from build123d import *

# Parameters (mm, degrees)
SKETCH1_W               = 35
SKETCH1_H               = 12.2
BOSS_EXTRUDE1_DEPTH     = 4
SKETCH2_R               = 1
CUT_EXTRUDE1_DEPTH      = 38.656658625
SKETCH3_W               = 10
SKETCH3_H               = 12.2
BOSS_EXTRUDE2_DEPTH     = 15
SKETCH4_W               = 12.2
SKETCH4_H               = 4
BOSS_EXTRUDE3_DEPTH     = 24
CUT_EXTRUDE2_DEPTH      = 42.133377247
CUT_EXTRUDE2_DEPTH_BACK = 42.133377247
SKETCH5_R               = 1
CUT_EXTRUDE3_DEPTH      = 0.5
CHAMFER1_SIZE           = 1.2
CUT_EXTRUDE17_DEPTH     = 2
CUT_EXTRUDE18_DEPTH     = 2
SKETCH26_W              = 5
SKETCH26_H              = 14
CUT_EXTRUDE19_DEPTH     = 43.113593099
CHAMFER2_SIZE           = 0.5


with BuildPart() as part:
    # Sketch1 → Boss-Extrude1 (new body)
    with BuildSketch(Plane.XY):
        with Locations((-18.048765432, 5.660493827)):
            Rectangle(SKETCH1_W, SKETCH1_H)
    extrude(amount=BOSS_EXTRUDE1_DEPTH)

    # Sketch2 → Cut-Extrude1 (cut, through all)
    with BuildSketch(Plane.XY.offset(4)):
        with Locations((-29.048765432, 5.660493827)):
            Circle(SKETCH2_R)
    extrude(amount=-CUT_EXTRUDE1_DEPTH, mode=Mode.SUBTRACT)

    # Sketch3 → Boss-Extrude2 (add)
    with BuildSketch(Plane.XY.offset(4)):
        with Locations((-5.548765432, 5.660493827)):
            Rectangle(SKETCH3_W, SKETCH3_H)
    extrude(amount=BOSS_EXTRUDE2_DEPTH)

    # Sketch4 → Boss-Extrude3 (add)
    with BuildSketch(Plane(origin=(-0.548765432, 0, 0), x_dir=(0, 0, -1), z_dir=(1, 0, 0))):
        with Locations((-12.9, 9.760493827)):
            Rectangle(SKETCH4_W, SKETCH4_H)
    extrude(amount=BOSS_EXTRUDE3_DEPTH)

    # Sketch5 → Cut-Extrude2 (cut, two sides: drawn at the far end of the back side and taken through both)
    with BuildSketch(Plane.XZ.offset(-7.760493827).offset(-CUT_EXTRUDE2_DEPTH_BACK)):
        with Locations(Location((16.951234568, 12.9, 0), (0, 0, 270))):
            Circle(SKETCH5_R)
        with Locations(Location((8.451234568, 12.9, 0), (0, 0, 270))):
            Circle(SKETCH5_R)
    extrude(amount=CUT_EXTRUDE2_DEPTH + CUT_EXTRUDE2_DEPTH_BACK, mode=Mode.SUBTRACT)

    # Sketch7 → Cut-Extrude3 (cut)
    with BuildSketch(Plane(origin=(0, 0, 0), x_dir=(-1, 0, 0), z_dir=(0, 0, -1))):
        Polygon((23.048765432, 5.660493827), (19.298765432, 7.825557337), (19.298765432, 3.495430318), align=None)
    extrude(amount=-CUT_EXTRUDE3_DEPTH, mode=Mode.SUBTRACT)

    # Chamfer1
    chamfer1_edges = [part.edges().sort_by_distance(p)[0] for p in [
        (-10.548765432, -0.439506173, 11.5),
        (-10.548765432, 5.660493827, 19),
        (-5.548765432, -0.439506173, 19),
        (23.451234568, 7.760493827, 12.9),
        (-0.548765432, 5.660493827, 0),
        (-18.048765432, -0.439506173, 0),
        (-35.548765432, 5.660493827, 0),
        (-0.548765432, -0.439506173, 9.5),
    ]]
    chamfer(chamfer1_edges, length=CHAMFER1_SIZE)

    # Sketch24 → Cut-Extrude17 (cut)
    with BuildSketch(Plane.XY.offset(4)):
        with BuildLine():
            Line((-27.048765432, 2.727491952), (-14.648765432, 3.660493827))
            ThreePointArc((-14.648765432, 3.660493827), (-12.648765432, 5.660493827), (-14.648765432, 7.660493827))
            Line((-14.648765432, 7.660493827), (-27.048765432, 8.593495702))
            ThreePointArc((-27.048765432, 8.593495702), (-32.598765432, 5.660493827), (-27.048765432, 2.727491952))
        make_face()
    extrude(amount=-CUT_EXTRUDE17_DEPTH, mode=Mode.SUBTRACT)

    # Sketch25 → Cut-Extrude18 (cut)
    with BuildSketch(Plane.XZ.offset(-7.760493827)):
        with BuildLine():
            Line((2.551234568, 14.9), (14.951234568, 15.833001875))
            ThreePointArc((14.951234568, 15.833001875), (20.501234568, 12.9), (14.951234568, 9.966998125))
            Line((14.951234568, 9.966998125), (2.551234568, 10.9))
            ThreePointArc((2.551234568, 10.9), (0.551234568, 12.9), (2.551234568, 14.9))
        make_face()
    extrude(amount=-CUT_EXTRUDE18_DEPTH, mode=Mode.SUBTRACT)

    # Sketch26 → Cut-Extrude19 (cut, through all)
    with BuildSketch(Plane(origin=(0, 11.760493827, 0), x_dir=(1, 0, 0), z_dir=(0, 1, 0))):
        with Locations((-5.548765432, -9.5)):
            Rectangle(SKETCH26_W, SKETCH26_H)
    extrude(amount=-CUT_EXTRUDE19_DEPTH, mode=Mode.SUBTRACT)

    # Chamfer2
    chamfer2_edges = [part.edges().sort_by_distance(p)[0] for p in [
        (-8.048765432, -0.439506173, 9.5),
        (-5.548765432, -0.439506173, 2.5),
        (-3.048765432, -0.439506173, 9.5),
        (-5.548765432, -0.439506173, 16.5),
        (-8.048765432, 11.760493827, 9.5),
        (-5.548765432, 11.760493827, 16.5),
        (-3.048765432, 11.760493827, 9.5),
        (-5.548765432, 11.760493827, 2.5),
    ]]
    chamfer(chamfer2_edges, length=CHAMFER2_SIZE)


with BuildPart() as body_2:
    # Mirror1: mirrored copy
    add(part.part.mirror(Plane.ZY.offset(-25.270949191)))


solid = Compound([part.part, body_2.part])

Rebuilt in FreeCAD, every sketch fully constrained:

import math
import FreeCAD as App
import Part
import Sketcher
Q = App.Units.Quantity


def edges_at(feature, points):
    """Names of the edges that pass closest to the given points."""
    edges = feature.Shape.Edges
    near = lambda p: min(range(len(edges)), key=lambda i: edges[i].distToShape(Part.Vertex(*p))[0])
    return sorted({f"Edge{near(p) + 1}" for p in points})

doc = App.newDocument("Part")
body = doc.addObject("PartDesign::Body", "Body")

# Sketch on XY plane
sketch1 = body.newObject("Sketcher::SketchObject", "Sketch")
sketch1.AttachmentSupport = (doc.getObject("XY_Plane"), [""])
sketch1.MapMode = "FlatFace"
sketch1.addGeometry([
    Part.LineSegment(App.Vector(-35.548765, 11.760494, 0), App.Vector(-35.548765, -0.439506, 0)),
    Part.LineSegment(App.Vector(-35.548765, -0.439506, 0), App.Vector(-0.548765, -0.439506, 0)),
    Part.LineSegment(App.Vector(-0.548765, -0.439506, 0), App.Vector(-0.548765, 11.760494, 0)),
    Part.LineSegment(App.Vector(-0.548765, 11.760494, 0), App.Vector(-35.548765, 11.760494, 0)),
], False)
sketch1.addConstraint([
    Sketcher.Constraint("Coincident", 0, 2, 1, 1),
    Sketcher.Constraint("Coincident", 1, 2, 2, 1),
    Sketcher.Constraint("Coincident", 2, 2, 3, 1),
    Sketcher.Constraint("Coincident", 3, 2, 0, 1),
    Sketcher.Constraint("Vertical", 0),
    Sketcher.Constraint("Horizontal", 1),
    Sketcher.Constraint("Vertical", 2),
    Sketcher.Constraint("Horizontal", 3),
    Sketcher.Constraint("DistanceX", 1, 1, 1, 2, Q("35 mm")),
    Sketcher.Constraint("DistanceY", 0, 2, 0, 1, Q("12.2 mm")),
    Sketcher.Constraint("DistanceX", 0, 2, -1, 1, Q("35.548765 mm")),
    Sketcher.Constraint("DistanceY", 0, 2, -1, 1, Q("0.439506 mm")),
])
pad1 = body.newObject("PartDesign::Pad", "Pad")
pad1.Profile = sketch1
pad1.Length = 4

# Sketch on XY plane
sketch2 = body.newObject("Sketcher::SketchObject", "Sketch001")
sketch2.AttachmentSupport = (doc.getObject("XY_Plane"), [""])
sketch2.MapMode = "FlatFace"
sketch2.AttachmentOffset = App.Placement(App.Vector(0, 0, 4), App.Rotation())
sketch2.addGeometry(Part.Circle(App.Vector(-29.048765, 5.660494, 0), App.Vector(0, 0, 1), 1), False)
sketch2.addConstraint([
    Sketcher.Constraint("Diameter", 0, Q("2 mm")),
    Sketcher.Constraint("DistanceX", 0, 3, -1, 1, Q("29.048765 mm")),
    Sketcher.Constraint("DistanceY", -1, 1, 0, 3, Q("5.660494 mm")),
])
pocket1 = body.newObject("PartDesign::Pocket", "Pocket")
pocket1.Profile = sketch2
pocket1.Type = "ThroughAll"

# Sketch on XY plane
sketch3 = body.newObject("Sketcher::SketchObject", "Sketch002")
sketch3.AttachmentSupport = (doc.getObject("XY_Plane"), [""])
sketch3.MapMode = "FlatFace"
sketch3.AttachmentOffset = App.Placement(App.Vector(0, 0, 4), App.Rotation())
sketch3.addGeometry([
    Part.LineSegment(App.Vector(-10.548765, 11.760494, 0), App.Vector(-10.548765, -0.439506, 0)),
    Part.LineSegment(App.Vector(-10.548765, -0.439506, 0), App.Vector(-0.548765, -0.439506, 0)),
    Part.LineSegment(App.Vector(-0.548765, -0.439506, 0), App.Vector(-0.548765, 11.760494, 0)),
    Part.LineSegment(App.Vector(-0.548765, 11.760494, 0), App.Vector(-10.548765, 11.760494, 0)),
], False)
sketch3.addConstraint([
    Sketcher.Constraint("Coincident", 0, 2, 1, 1),
    Sketcher.Constraint("Coincident", 1, 2, 2, 1),
    Sketcher.Constraint("Coincident", 2, 2, 3, 1),
    Sketcher.Constraint("Coincident", 3, 2, 0, 1),
    Sketcher.Constraint("Vertical", 0),
    Sketcher.Constraint("Horizontal", 1),
    Sketcher.Constraint("Vertical", 2),
    Sketcher.Constraint("Horizontal", 3),
    Sketcher.Constraint("DistanceX", 1, 1, 1, 2, Q("10 mm")),
    Sketcher.Constraint("DistanceY", 0, 2, 0, 1, Q("12.2 mm")),
    Sketcher.Constraint("DistanceX", 0, 2, -1, 1, Q("10.548765 mm")),
    Sketcher.Constraint("DistanceY", 0, 2, -1, 1, Q("0.439506 mm")),
])
pad2 = body.newObject("PartDesign::Pad", "Pad001")
pad2.Profile = sketch3
pad2.Length = 15

# Sketch on YZ plane
sketch4 = body.newObject("Sketcher::SketchObject", "Sketch003")
sketch4.AttachmentSupport = (doc.getObject("YZ_Plane"), [""])
sketch4.MapMode = "FlatFace"
sketch4.AttachmentOffset = App.Placement(App.Vector(0, 0, -0.548765), App.Rotation())
sketch4.addGeometry([
    Part.LineSegment(App.Vector(11.760494, 19, 0), App.Vector(7.760494, 19, 0)),
    Part.LineSegment(App.Vector(7.760494, 19, 0), App.Vector(7.760494, 6.8, 0)),
    Part.LineSegment(App.Vector(7.760494, 6.8, 0), App.Vector(11.760494, 6.8, 0)),
    Part.LineSegment(App.Vector(11.760494, 6.8, 0), App.Vector(11.760494, 19, 0)),
], False)
sketch4.addConstraint([
    Sketcher.Constraint("Coincident", 0, 2, 1, 1),
    Sketcher.Constraint("Coincident", 1, 2, 2, 1),
    Sketcher.Constraint("Coincident", 2, 2, 3, 1),
    Sketcher.Constraint("Coincident", 3, 2, 0, 1),
    Sketcher.Constraint("Horizontal", 0),
    Sketcher.Constraint("Vertical", 1),
    Sketcher.Constraint("Horizontal", 2),
    Sketcher.Constraint("Vertical", 3),
    Sketcher.Constraint("DistanceX", 0, 2, 0, 1, Q("4 mm")),
    Sketcher.Constraint("DistanceY", 1, 2, 1, 1, Q("12.2 mm")),
    Sketcher.Constraint("DistanceY", -1, 1, 0, 2, Q("19 mm")),
    Sketcher.Constraint("DistanceX", -1, 1, 0, 2, Q("7.760494 mm")),
])
pad3 = body.newObject("PartDesign::Pad", "Pad002")
pad3.Profile = sketch4
pad3.Length = 24

# Sketch on XZ plane
sketch5 = body.newObject("Sketcher::SketchObject", "Sketch004")
sketch5.AttachmentSupport = (doc.getObject("XZ_Plane"), [""])
sketch5.MapMode = "FlatFace"
sketch5.AttachmentOffset = App.Placement(App.Vector(0, 0, -7.760494), App.Rotation())
sketch5.addGeometry([
    Part.Circle(App.Vector(16.951235, 12.9, 0), App.Vector(0, 0, 1), 1),
    Part.Circle(App.Vector(8.451235, 12.9, 0), App.Vector(0, 0, 1), 1),
], False)
sketch5.addConstraint([
    Sketcher.Constraint("Equal", 0, 1),
    Sketcher.Constraint("Horizontal", 0, 3, 1, 3),
    Sketcher.Constraint("Diameter", 0, Q("2 mm")),
    Sketcher.Constraint("DistanceY", -1, 1, 0, 3, Q("12.9 mm")),
    Sketcher.Constraint("DistanceX", 1, 3, 0, 3, Q("8.5 mm")),
    Sketcher.Constraint("DistanceX", -1, 1, 0, 3, Q("16.951235 mm")),
])
pocket2 = body.newObject("PartDesign::Pocket", "Pocket001")
pocket2.Profile = sketch5
pocket2.Type = "ThroughAll"
pocket2.Midplane = True

# Sketch on XY plane
sketch6 = body.newObject("Sketcher::SketchObject", "Sketch005")
sketch6.AttachmentSupport = (doc.getObject("XY_Plane"), [""])
sketch6.MapMode = "FlatFace"
sketch6.addGeometry([
    Part.LineSegment(App.Vector(-23.048765, 5.660494, 0), App.Vector(-19.298765, 7.825557, 0)),
    Part.LineSegment(App.Vector(-19.298765, 7.825557, 0), App.Vector(-19.298765, 3.49543, 0)),
    Part.LineSegment(App.Vector(-19.298765, 3.49543, 0), App.Vector(-23.048765, 5.660494, 0)),
], False)
sketch6.addConstraint([
    Sketcher.Constraint("Coincident", 0, 2, 1, 1),
    Sketcher.Constraint("Coincident", 1, 2, 2, 1),
    Sketcher.Constraint("Coincident", 2, 2, 0, 1),
    Sketcher.Constraint("Vertical", 1),
    Sketcher.Constraint("Equal", 0, 2),
    Sketcher.Constraint("Angle", 0, Q("30 deg")),
    Sketcher.Constraint("DistanceX", 2, 2, 1, 2, Q("3.75 mm")),
    Sketcher.Constraint("DistanceY", -1, 1, 1, 2, Q("3.49543 mm")),
    Sketcher.Constraint("DistanceX", 0, 2, -1, 1, Q("19.298765 mm")),
])
pocket3 = body.newObject("PartDesign::Pocket", "Pocket002")
pocket3.Profile = sketch6
pocket3.Length = 0.5
pocket3.Reversed = True
doc.recompute()

chamfer = body.newObject("PartDesign::Chamfer", "Chamfer")
chamfer.Base = (pocket3, edges_at(pocket3, [
    (-10.549, -0.44, 11.5),
    (-10.549, 5.66, 19),
    (-5.549, -0.44, 19),
    (23.451, 7.76, 12.9),
    (-0.549, 5.66, 0),
    (-18.049, -0.44, 0),
    (-35.549, 5.66, 0),
    (-0.549, -0.44, 9.5),
]))
chamfer.Size = 1.2

# Sketch on XY plane
sketch7 = body.newObject("Sketcher::SketchObject", "Sketch006")
sketch7.AttachmentSupport = (doc.getObject("XY_Plane"), [""])
sketch7.MapMode = "FlatFace"
sketch7.AttachmentOffset = App.Placement(App.Vector(0, 0, 4), App.Rotation())
sketch7.addGeometry([
    Part.LineSegment(App.Vector(-27.048765, 2.727492, 0), App.Vector(-14.648765, 3.660494, 0)),
    Part.ArcOfCircle(Part.Circle(App.Vector(-14.648765, 5.660494, 0), App.Vector(0, 0, 1), 2), math.radians(-90), math.radians(90)),
    Part.LineSegment(App.Vector(-14.648765, 7.660494, 0), App.Vector(-27.048765, 8.593496, 0)),
    Part.ArcOfCircle(Part.Circle(App.Vector(-29.048765, 5.660494, 0), App.Vector(0, 0, 1), 3.55), math.radians(55.710109), math.radians(304.289891)),
], False)
sketch7.addConstraint([
    Sketcher.Constraint("Coincident", 0, 2, 1, 1),
    Sketcher.Constraint("Coincident", 1, 2, 2, 1),
    Sketcher.Constraint("Coincident", 2, 2, 3, 1),
    Sketcher.Constraint("Coincident", 3, 2, 0, 1),
    Sketcher.Constraint("Horizontal", 1, 3, 3, 3),
    Sketcher.Constraint("Vertical", 1, 3, 0, 2),
    Sketcher.Constraint("Vertical", 0, 2, 1, 2),
    Sketcher.Constraint("Vertical", 2, 2, 3, 2),
    Sketcher.Constraint("Radius", 1, Q("2 mm")),
    Sketcher.Constraint("Radius", 3, Q("3.55 mm")),
    Sketcher.Constraint("DistanceX", 3, 3, 2, 2, Q("2 mm")),
    Sketcher.Constraint("DistanceX", 3, 3, 1, 3, Q("14.4 mm")),
    Sketcher.Constraint("DistanceY", -1, 1, 3, 2, Q("2.727492 mm")),
    Sketcher.Constraint("DistanceX", 1, 3, -1, 1, Q("14.648765 mm")),
])
pocket4 = body.newObject("PartDesign::Pocket", "Pocket003")
pocket4.Profile = sketch7
pocket4.Length = 2

# Sketch on XZ plane
sketch8 = body.newObject("Sketcher::SketchObject", "Sketch007")
sketch8.AttachmentSupport = (doc.getObject("XZ_Plane"), [""])
sketch8.MapMode = "FlatFace"
sketch8.AttachmentOffset = App.Placement(App.Vector(0, 0, -7.760494), App.Rotation())
sketch8.addGeometry([
    Part.LineSegment(App.Vector(14.951235, 15.833002, 0), App.Vector(2.551235, 14.9, 0)),
    Part.ArcOfCircle(Part.Circle(App.Vector(2.551235, 12.9, 0), App.Vector(0, 0, 1), 2), math.radians(90), math.radians(270)),
    Part.LineSegment(App.Vector(2.551235, 10.9, 0), App.Vector(14.951235, 9.966998, 0)),
    Part.ArcOfCircle(Part.Circle(App.Vector(16.951235, 12.9, 0), App.Vector(0, 0, 1), 3.55), math.radians(-124.289891), math.radians(124.289891)),
], False)
sketch8.addConstraint([
    Sketcher.Constraint("Coincident", 0, 2, 1, 1),
    Sketcher.Constraint("Coincident", 1, 2, 2, 1),
    Sketcher.Constraint("Coincident", 2, 2, 3, 1),
    Sketcher.Constraint("Coincident", 3, 2, 0, 1),
    Sketcher.Constraint("Horizontal", 1, 3, 3, 3),
    Sketcher.Constraint("Vertical", 1, 3, 0, 2),
    Sketcher.Constraint("Vertical", 0, 2, 1, 2),
    Sketcher.Constraint("Vertical", 2, 2, 3, 2),
    Sketcher.Constraint("Radius", 1, Q("2 mm")),
    Sketcher.Constraint("Radius", 3, Q("3.55 mm")),
    Sketcher.Constraint("DistanceX", 2, 2, 3, 3, Q("2 mm")),
    Sketcher.Constraint("DistanceY", -1, 1, 1, 3, Q("12.9 mm")),
    Sketcher.Constraint("DistanceX", 1, 3, 3, 3, Q("14.4 mm")),
    Sketcher.Constraint("DistanceX", -1, 1, 1, 3, Q("2.551235 mm")),
])
pocket5 = body.newObject("PartDesign::Pocket", "Pocket004")
pocket5.Profile = sketch8
pocket5.Length = 2

# Sketch on XZ plane
sketch9 = body.newObject("Sketcher::SketchObject", "Sketch008")
sketch9.AttachmentSupport = (doc.getObject("XZ_Plane"), [""])
sketch9.MapMode = "FlatFace"
sketch9.AttachmentOffset = App.Placement(App.Vector(0, 0, -11.760494), App.Rotation())
sketch9.addGeometry([
    Part.LineSegment(App.Vector(-8.048765, 2.5, 0), App.Vector(-8.048765, 16.5, 0)),
    Part.LineSegment(App.Vector(-8.048765, 16.5, 0), App.Vector(-3.048765, 16.5, 0)),
    Part.LineSegment(App.Vector(-3.048765, 16.5, 0), App.Vector(-3.048765, 2.5, 0)),
    Part.LineSegment(App.Vector(-3.048765, 2.5, 0), App.Vector(-8.048765, 2.5, 0)),
], False)
sketch9.addConstraint([
    Sketcher.Constraint("Coincident", 0, 2, 1, 1),
    Sketcher.Constraint("Coincident", 1, 2, 2, 1),
    Sketcher.Constraint("Coincident", 2, 2, 3, 1),
    Sketcher.Constraint("Coincident", 3, 2, 0, 1),
    Sketcher.Constraint("Vertical", 0),
    Sketcher.Constraint("Horizontal", 1),
    Sketcher.Constraint("Vertical", 2),
    Sketcher.Constraint("Horizontal", 3),
    Sketcher.Constraint("DistanceX", 1, 1, 1, 2, Q("5 mm")),
    Sketcher.Constraint("DistanceY", 0, 1, 0, 2, Q("14 mm")),
    Sketcher.Constraint("DistanceY", -1, 1, 0, 2, Q("16.5 mm")),
    Sketcher.Constraint("DistanceX", 0, 2, -1, 1, Q("8.048765 mm")),
])
pocket6 = body.newObject("PartDesign::Pocket", "Pocket005")
pocket6.Profile = sketch9
pocket6.Type = "ThroughAll"
pocket6.Reversed = True
doc.recompute()

chamfer2 = body.newObject("PartDesign::Chamfer", "Chamfer001")
chamfer2.Base = (pocket6, edges_at(pocket6, [
    (-8.049, -0.44, 9.5),
    (-5.549, -0.44, 2.5),
    (-3.049, -0.44, 9.5),
    (-5.549, -0.44, 16.5),
    (-8.049, 11.76, 9.5),
    (-5.549, 11.76, 16.5),
    (-3.049, 11.76, 9.5),
    (-5.549, 11.76, 2.5),
]))
chamfer2.Size = 0.5
body2 = doc.addObject("PartDesign::Body", "Body001")
doc.recompute()

mirroring = doc.addObject("Part::Mirroring", "Mirroring")
mirroring.Source = body
mirroring.Base = App.Vector(25.270949, 0, 0)
mirroring.Normal = App.Vector(-1, 0, 0)
body2.BaseFeature = mirroring
doc.recompute()
mirroring.Visibility = False

doc.recompute()
